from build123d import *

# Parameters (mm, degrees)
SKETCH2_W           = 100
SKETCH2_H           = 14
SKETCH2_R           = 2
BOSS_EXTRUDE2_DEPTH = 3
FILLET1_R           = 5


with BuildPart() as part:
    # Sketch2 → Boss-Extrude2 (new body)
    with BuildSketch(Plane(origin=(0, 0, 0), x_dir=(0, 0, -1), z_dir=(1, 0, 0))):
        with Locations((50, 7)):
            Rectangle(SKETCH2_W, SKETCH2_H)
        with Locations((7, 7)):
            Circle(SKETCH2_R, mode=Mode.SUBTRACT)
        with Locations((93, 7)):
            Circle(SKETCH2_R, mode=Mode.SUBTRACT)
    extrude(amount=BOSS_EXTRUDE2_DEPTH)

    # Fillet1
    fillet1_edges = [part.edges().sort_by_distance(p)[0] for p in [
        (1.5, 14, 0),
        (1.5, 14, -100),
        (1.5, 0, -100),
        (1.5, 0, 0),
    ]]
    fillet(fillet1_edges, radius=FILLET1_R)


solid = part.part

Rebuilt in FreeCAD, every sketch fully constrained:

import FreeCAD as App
import Part
import Sketcher
from FreeCAD import Vector


def edges_at(feature, points):
    """Names of the edges that pass closest to the given points."""
    edges = feature.Shape.Edges
    near = lambda p: min(range(len(edges)), key=lambda i: edges[i].distToShape(Part.Vertex(*p))[0])
    return sorted({f"Edge{near(p) + 1}" for p in points})

doc = App.newDocument("Part")
body = doc.addObject("PartDesign::Body", "Body")

sketch1 = body.newObject("Sketcher::SketchObject", "Sketch")
sketch1.AttachmentSupport = (doc.getObject("YZ_Plane"), [""])
sketch1.MapMode = "FlatFace"
sketch1.addGeometry(Part.LineSegment(Vector(14, 0, 0), Vector(0, 0, 0)), False)
sketch1.addGeometry(Part.LineSegment(Vector(0, 0, 0), Vector(0, -100, 0)), False)
sketch1.addGeometry(Part.LineSegment(Vector(0, -100, 0), Vector(14, -100, 0)), False)
sketch1.addGeometry(Part.LineSegment(Vector(14, -100, 0), Vector(14, 0, 0)), False)
sketch1.addGeometry(Part.Circle(Vector(7, -7, 0), Vector(0, 0, 1), 2), False)
sketch1.addGeometry(Part.Circle(Vector(7, -93, 0), Vector(0, 0, 1), 2), False)
sketch1.addConstraint(Sketcher.Constraint("Coincident", 0, 2, 1, 1))
sketch1.addConstraint(Sketcher.Constraint("Coincident", 1, 2, 2, 1))
sketch1.addConstraint(Sketcher.Constraint("Coincident", 2, 2, 3, 1))
sketch1.addConstraint(Sketcher.Constraint("Coincident", 3, 2, 0, 1))
sketch1.addConstraint(Sketcher.Constraint("Horizontal", 0))
sketch1.addConstraint(Sketcher.Constraint("Vertical", 1))
sketch1.addConstraint(Sketcher.Constraint("Horizontal", 2))
sketch1.addConstraint(Sketcher.Constraint("Vertical", 3))
sketch1.addConstraint(Sketcher.Constraint("Coincident", 0, 2, -1, 1))
sketch1.addConstraint(Sketcher.Constraint("Equal", 4, 5))
sketch1.addConstraint(Sketcher.Constraint("Vertical", 4, 3, 5, 3))
sketch1.addConstraint(Sketcher.Constraint("Diameter", 4, 4.0))
sketch1.addConstraint(Sketcher.Constraint("DistanceX", 0, 2, 0, 1, 14.0))
sketch1.addConstraint(Sketcher.Constraint("DistanceY", 1, 2, 1, 1, 100.0))
sketch1.addConstraint(Sketcher.Constraint("DistanceX", -1, 1, 4, 3, 7.0))
sketch1.addConstraint(Sketcher.Constraint("DistanceY", 4, 3, -1, 1, 7.0))
sketch1.addConstraint(Sketcher.Constraint("DistanceY", 5, 3, -1, 1, 93.0))
pad1 = body.newObject("PartDesign::Pad", "Pad")
pad1.Profile = sketch1
pad1.Length = 3
doc.recompute()

fillet = body.newObject("PartDesign::Fillet", "Fillet")
fillet.Base = (pad1, edges_at(pad1, [
    (1.5, 14, 0),
    (1.5, 14, -100),
    (1.5, 0, -100),
    (1.5, 0, 0),
]))
fillet.Radius = 5

doc.recompute()
